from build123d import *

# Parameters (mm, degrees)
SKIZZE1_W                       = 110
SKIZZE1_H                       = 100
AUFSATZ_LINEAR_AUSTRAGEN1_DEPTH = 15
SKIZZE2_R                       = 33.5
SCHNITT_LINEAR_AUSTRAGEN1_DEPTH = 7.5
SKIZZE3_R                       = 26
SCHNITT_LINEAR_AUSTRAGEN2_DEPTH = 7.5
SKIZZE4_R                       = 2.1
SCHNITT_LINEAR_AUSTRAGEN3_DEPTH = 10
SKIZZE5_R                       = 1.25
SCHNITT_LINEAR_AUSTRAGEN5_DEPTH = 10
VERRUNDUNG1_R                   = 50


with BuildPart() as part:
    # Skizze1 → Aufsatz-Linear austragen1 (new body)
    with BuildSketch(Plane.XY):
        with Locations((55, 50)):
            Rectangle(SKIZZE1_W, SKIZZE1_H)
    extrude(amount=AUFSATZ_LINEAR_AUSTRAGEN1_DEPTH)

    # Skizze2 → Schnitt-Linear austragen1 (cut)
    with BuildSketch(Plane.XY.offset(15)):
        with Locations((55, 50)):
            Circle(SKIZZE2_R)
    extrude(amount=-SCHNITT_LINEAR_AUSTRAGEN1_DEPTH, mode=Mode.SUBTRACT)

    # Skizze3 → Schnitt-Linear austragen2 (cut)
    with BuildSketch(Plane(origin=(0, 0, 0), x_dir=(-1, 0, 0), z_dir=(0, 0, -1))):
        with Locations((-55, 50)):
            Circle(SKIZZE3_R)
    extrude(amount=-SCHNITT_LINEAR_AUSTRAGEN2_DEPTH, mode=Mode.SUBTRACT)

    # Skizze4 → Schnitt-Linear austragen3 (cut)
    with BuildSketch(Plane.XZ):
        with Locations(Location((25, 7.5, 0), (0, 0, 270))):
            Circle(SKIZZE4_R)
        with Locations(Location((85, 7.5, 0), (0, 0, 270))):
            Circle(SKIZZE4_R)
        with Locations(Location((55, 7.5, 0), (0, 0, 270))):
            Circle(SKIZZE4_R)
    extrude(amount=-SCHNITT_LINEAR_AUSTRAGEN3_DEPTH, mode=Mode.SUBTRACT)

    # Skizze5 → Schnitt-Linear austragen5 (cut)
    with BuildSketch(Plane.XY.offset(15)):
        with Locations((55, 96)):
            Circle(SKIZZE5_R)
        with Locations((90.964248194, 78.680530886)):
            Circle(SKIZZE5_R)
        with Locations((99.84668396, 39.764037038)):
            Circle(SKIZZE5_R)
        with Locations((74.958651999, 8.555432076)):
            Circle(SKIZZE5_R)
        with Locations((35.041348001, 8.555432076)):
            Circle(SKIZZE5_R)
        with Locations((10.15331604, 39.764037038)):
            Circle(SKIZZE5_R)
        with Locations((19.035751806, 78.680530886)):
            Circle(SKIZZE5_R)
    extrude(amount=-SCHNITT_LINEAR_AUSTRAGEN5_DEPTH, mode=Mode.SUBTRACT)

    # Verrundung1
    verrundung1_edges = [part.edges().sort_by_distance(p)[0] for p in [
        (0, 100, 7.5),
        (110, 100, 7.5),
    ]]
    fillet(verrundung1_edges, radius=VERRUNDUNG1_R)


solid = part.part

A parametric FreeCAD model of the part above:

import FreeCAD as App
import Part
import Sketcher
Q = App.Units.Quantity


def edges_at(feature, points):
    """Names of the edges that pass closest to the given points."""
    edges = feature.Shape.Edges
    near = lambda p: min(range(len(edges)), key=lambda i: edges[i].distToShape(Part.Vertex(*p))[0])
    return sorted({f"Edge{near(p) + 1}" for p in points})

doc = App.newDocument("Part")
body = doc.addObject("PartDesign::Body", "Body")

# Sketch on XY plane
sketch1 = doc.addObject("Sketcher::SketchObject", "Sketch")
body.addObject(sketch1)
sketch1.AttachmentSupport = (doc.XY_Plane, [""])
sketch1.MapMode = "FlatFace"
sketch1.addGeometry([
    Part.LineSegment(App.Vector(0, 100, 0), App.Vector(0, 0, 0)),
    Part.LineSegment(App.Vector(0, 0, 0), App.Vector(110, 0, 0)),
    Part.LineSegment(App.Vector(110, 0, 0), App.Vector(110, 100, 0)),
    Part.LineSegment(App.Vector(110, 100, 0), App.Vector(0, 100, 0)),
], False)
sketch1.addConstraint([
    Sketcher.Constraint("Coincident", 0, 2, 1, 1),
    Sketcher.Constraint("Coincident", 1, 2, 2, 1),
    Sketcher.Constraint("Coincident", 2, 2, 3, 1),
    Sketcher.Constraint("Coincident", 3, 2, 0, 1),
    Sketcher.Constraint("Vertical", 0),
    Sketcher.Constraint("Horizontal", 1),
    Sketcher.Constraint("Vertical", 2),
    Sketcher.Constraint("Horizontal", 3),
    Sketcher.Constraint("Coincident", 0, 2, -1, 1),
    Sketcher.Constraint("DistanceX", 1, 1, 1, 2, Q("110 mm")),
    Sketcher.Constraint("DistanceY", 0, 2, 0, 1, Q("100 mm")),
])
pad1 = doc.addObject("PartDesign::Pad", "Pad")
body.addObject(pad1)
pad1.Profile = sketch1
pad1.Length = 15

# Sketch on XY plane
sketch2 = doc.addObject("Sketcher::SketchObject", "Sketch001")
body.addObject(sketch2)
sketch2.AttachmentSupport = (doc.XY_Plane, [""])
sketch2.MapMode = "FlatFace"
sketch2.AttachmentOffset = App.Placement(App.Vector(0, 0, 15), App.Rotation())
sketch2.addGeometry(Part.Circle(App.Vector(55, 50, 0), App.Vector(0, 0, 1), 34), False)
sketch2.addConstraint([
    Sketcher.Constraint("Diameter", 0, Q("67 mm")),
    Sketcher.Constraint("DistanceX", -1, 1, 0, 3, Q("55 mm")),
    Sketcher.Constraint("DistanceY", -1, 1, 0, 3, Q("50 mm")),
])
pocket1 = doc.addObject("PartDesign::Pocket", "Pocket")
body.addObject(pocket1)
pocket1.Profile = sketch2
pocket1.Length = 7.5

# Sketch on XY plane
sketch3 = doc.addObject("Sketcher::SketchObject", "Sketch002")
body.addObject(sketch3)
sketch3.AttachmentSupport = (doc.XY_Plane, [""])
sketch3.MapMode = "FlatFace"
sketch3.addGeometry(Part.Circle(App.Vector(55, 50, 0), App.Vector(0, 0, 1), 26), False)
sketch3.addConstraint([
    Sketcher.Constraint("Diameter", 0, Q("52 mm")),
    Sketcher.Constraint("DistanceX", -1, 1, 0, 3, Q("55 mm")),
    Sketcher.Constraint("DistanceY", -1, 1, 0, 3, Q("50 mm")),
])
pocket2 = doc.addObject("PartDesign::Pocket", "Pocket001")
body.addObject(pocket2)
pocket2.Profile = sketch3
pocket2.Length = 7.5
pocket2.Reversed = True

# Sketch on XZ plane
sketch4 = doc.addObject("Sketcher::SketchObject", "Sketch003")
body.addObject(sketch4)
sketch4.AttachmentSupport = (doc.XZ_Plane, [""])
sketch4.MapMode = "FlatFace"
sketch4.addGeometry([
    Part.Circle(App.Vector(25, 7.5, 0), App.Vector(0, 0, 1), 2.1),
    Part.Circle(App.Vector(85, 7.5, 0), App.Vector(0, 0, 1), 2.1),
    Part.Circle(App.Vector(55, 7.5, 0), App.Vector(0, 0, 1), 2.1),
], False)
sketch4.addConstraint([
    Sketcher.Constraint("Equal", 0, 1),
    Sketcher.Constraint("Equal", 1, 2),
    Sketcher.Constraint("Horizontal", 0, 3, 1, 3),
    Sketcher.Constraint("Horizontal", 1, 3, 2, 3),
    Sketcher.Constraint("Diameter", 0, Q("4.2 mm")),
    Sketcher.Constraint("DistanceX", -1, 1, 0, 3, Q("25 mm")),
    Sketcher.Constraint("DistanceX", -1, 1, 1, 3, Q("85 mm")),
    Sketcher.Constraint("DistanceX", -1, 1, 2, 3, Q("55 mm")),
    Sketcher.Constraint("DistanceY", -1, 1, 0, 3, Q("7.5 mm")),
])
pocket3 = doc.addObject("PartDesign::Pocket", "Pocket002")
body.addObject(pocket3)
pocket3.Profile = sketch4
pocket3.Length = 10

# Sketch on XY plane
sketch5 = doc.addObject("Sketcher::SketchObject", "Sketch004")
body.addObject(sketch5)
sketch5.AttachmentSupport = (doc.XY_Plane, [""])
sketch5.MapMode = "FlatFace"
sketch5.AttachmentOffset = App.Placement(App.Vector(0, 0, 15), App.Rotation())
sketch5.addGeometry([
    Part.Circle(App.Vector(55, 96, 0), App.Vector(0, 0, 1), 1.2),  # 0
    Part.Circle(App.Vector(91, 78.7, 0), App.Vector(0, 0, 1), 1.2),  # 1
    Part.Circle(App.Vector(99.8, 39.8, 0), App.Vector(0, 0, 1), 1.2),  # 2
    Part.Circle(App.Vector(75, 8.6, 0), App.Vector(0, 0, 1), 1.2),  # 3
    Part.Circle(App.Vector(35, 8.6, 0), App.Vector(0, 0, 1), 1.2),  # 4
    Part.Circle(App.Vector(10.2, 39.8, 0), App.Vector(0, 0, 1), 1.2),  # 5
    Part.Circle(App.Vector(19, 78.7, 0), App.Vector(0, 0, 1), 1.2),  # 6
], False)
sketch5.addConstraint([
    Sketcher.Constraint("Equal", 0, 1),
    Sketcher.Constraint("Equal", 1, 2),
    Sketcher.Constraint("Equal", 2, 3),
    Sketcher.Constraint("Equal", 3, 4),
    Sketcher.Constraint("Equal", 4, 5),
    Sketcher.Constraint("Equal", 5, 6),
    Sketcher.Constraint("Horizontal", 3, 3, 4, 3),
    Sketcher.Constraint("Horizontal", 2, 3, 5, 3),
    Sketcher.Constraint("Horizontal", 1, 3, 6, 3),
    Sketcher.Constraint("Diameter", 0, Q("2.5 mm")),
    Sketcher.Constraint("DistanceX", -1, 1, 0, 3, Q("55 mm")),
    Sketcher.Constraint("DistanceY", -1, 1, 0, 3, Q("96 mm")),
    Sketcher.Constraint("DistanceY", 3, 3, 1, 3, Q("70.125099 mm")),
    Sketcher.Constraint("DistanceX", 4, 3, 1, 3, Q("55.9229 mm")),
    Sketcher.Constraint("DistanceX", -1, 1, 1, 3, Q("90.964248 mm")),
    Sketcher.Constraint("DistanceY", -1, 1, 1, 3, Q("78.680531 mm")),
    Sketcher.Constraint("DistanceX", -1, 1, 3, 3, Q("74.958652 mm")),
    Sketcher.Constraint("DistanceX", -1, 1, 6, 3, Q("19.035752 mm")),
    Sketcher.Constraint("DistanceX", 3, 3, 2, 3, Q("24.888032 mm")),
    Sketcher.Constraint("DistanceX", 5, 3, 4, 3, Q("24.888032 mm")),
    Sketcher.Constraint("DistanceY", -1, 1, 2, 3, Q("39.764037 mm")),
])
pocket4 = doc.addObject("PartDesign::Pocket", "Pocket003")
body.addObject(pocket4)
pocket4.Profile = sketch5
pocket4.Length = 10
doc.recompute()

fillet = doc.addObject("PartDesign::Fillet", "Fillet")
body.addObject(fillet)
fillet.Base = (pocket4, edges_at(pocket4, [(0, 100, 7.5), (110, 100, 7.5)]))
fillet.Radius = 50

doc.recompute()
